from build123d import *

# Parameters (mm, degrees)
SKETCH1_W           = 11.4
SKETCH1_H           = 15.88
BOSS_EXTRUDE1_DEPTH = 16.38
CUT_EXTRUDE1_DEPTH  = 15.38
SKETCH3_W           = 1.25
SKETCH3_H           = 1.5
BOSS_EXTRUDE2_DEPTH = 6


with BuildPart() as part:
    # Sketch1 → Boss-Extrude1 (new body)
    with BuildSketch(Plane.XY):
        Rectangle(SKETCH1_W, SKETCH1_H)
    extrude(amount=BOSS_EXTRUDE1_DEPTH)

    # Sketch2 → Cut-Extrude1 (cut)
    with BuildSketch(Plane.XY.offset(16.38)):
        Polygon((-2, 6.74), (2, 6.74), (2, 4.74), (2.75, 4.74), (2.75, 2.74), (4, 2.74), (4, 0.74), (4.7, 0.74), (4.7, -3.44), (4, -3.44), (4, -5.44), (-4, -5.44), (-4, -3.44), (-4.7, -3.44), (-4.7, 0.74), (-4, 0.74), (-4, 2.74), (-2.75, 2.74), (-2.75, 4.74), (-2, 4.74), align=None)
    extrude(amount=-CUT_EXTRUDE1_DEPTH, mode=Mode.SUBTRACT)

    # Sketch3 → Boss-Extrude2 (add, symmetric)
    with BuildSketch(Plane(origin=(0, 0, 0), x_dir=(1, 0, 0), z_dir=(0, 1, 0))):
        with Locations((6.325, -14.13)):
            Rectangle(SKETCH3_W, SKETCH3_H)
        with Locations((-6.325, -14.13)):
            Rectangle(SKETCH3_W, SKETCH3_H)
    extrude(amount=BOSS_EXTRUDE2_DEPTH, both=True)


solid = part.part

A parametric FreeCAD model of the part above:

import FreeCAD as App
import Part
import Sketcher

V = App.Vector

doc = App.newDocument("Part")
body = doc.addObject("PartDesign::Body", "Body")

# Sketch on XY plane
sketch1 = body.newObject("Sketcher::SketchObject", "Sketch")
sketch1.AttachmentSupport = (doc.getObject("XY_Plane"), [""])
sketch1.MapMode = "FlatFace"
sketch1.addGeometry(Part.LineSegment(V(-5.7, 7.94, 0), V(-5.7, -7.94, 0)), False)
sketch1.addGeometry(Part.LineSegment(V(-5.7, -7.94, 0), V(5.7, -7.94, 0)), False)
sketch1.addGeometry(Part.LineSegment(V(5.7, -7.94, 0), V(5.7, 7.94, 0)), False)
sketch1.addGeometry(Part.LineSegment(V(5.7, 7.94, 0), V(-5.7, 7.94, 0)), False)
sketch1.addConstraint(Sketcher.Constraint("Coincident", 0, 2, 1, 1))
sketch1.addConstraint(Sketcher.Constraint("Coincident", 1, 2, 2, 1))
sketch1.addConstraint(Sketcher.Constraint("Coincident", 2, 2, 3, 1))
sketch1.addConstraint(Sketcher.Constraint("Coincident", 3, 2, 0, 1))
sketch1.addConstraint(Sketcher.Constraint("Vertical", 0))
sketch1.addConstraint(Sketcher.Constraint("Horizontal", 1))
sketch1.addConstraint(Sketcher.Constraint("Vertical", 2))
sketch1.addConstraint(Sketcher.Constraint("Horizontal", 3))
sketch1.addConstraint(Sketcher.Constraint("Symmetric", 0, 2, 2, 2, -1, 1))
sketch1.addConstraint(Sketcher.Constraint("DistanceX", 1, 1, 1, 2, 11.4))
sketch1.addConstraint(Sketcher.Constraint("DistanceY", 0, 2, 0, 1, 15.88))
pad1 = body.newObject("PartDesign::Pad", "Pad")
pad1.Profile = sketch1
pad1.Length = 16.38

# Sketch on XY plane
sketch2 = body.newObject("Sketcher::SketchObject", "Sketch001")
sketch2.AttachmentSupport = (doc.getObject("XY_Plane"), [""])
sketch2.MapMode = "FlatFace"
sketch2.AttachmentOffset = App.Placement(V(0, 0, 16.38), App.Rotation())
sketch2.addGeometry(Part.LineSegment(V(2, 6.74, 0), V(-2, 6.74, 0)), False)
sketch2.addGeometry(Part.LineSegment(V(-2, 6.74, 0), V(-2, 4.74, 0)), False)
sketch2.addGeometry(Part.LineSegment(V(-2, 4.74, 0), V(-2.75, 4.74, 0)), False)
sketch2.addGeometry(Part.LineSegment(V(-2.75, 4.74, 0), V(-2.75, 2.74, 0)), False)
sketch2.addGeometry(Part.LineSegment(V(-2.75, 2.74, 0), V(-4, 2.74, 0)), False)
sketch2.addGeometry(Part.LineSegment(V(-4, 2.74, 0), V(-4, 0.74, 0)), False)
sketch2.addGeometry(Part.LineSegment(V(-4, 0.74, 0), V(-4.7, 0.74, 0)), False)
sketch2.addGeometry(Part.LineSegment(V(-4.7, 0.74, 0), V(-4.7, -3.44, 0)), False)
sketch2.addGeometry(Part.LineSegment(V(-4.7, -3.44, 0), V(-4, -3.44, 0)), False)
sketch2.addGeometry(Part.LineSegment(V(-4, -3.44, 0), V(-4, -5.44, 0)), False)
sketch2.addGeometry(Part.LineSegment(V(-4, -5.44, 0), V(4, -5.44, 0)), False)
sketch2.addGeometry(Part.LineSegment(V(4, -5.44, 0), V(4, -3.44, 0)), False)
sketch2.addGeometry(Part.LineSegment(V(4, -3.44, 0), V(4.7, -3.44, 0)), False)
sketch2.addGeometry(Part.LineSegment(V(4.7, -3.44, 0), V(4.7, 0.74, 0)), False)
sketch2.addGeometry(Part.LineSegment(V(4.7, 0.74, 0), V(4, 0.74, 0)), False)
sketch2.addGeometry(Part.LineSegment(V(4, 0.74, 0), V(4, 2.74, 0)), False)
sketch2.addGeometry(Part.LineSegment(V(4, 2.74, 0), V(2.75, 2.74, 0)), False)
sketch2.addGeometry(Part.LineSegment(V(2.75, 2.74, 0), V(2.75, 4.74, 0)), False)
sketch2.addGeometry(Part.LineSegment(V(2.75, 4.74, 0), V(2, 4.74, 0)), False)
sketch2.addGeometry(Part.LineSegment(V(2, 4.74, 0), V(2, 6.74, 0)), False)
sketch2.addConstraint(Sketcher.Constraint("Coincident", 0, 2, 1, 1))
sketch2.addConstraint(Sketcher.Constraint("Coincident", 1, 2, 2, 1))
sketch2.addConstraint(Sketcher.Constraint("Coincident", 2, 2, 3, 1))
sketch2.addConstraint(Sketcher.Constraint("Coincident", 3, 2, 4, 1))
sketch2.addConstraint(Sketcher.Constraint("Coincident", 4, 2, 5, 1))
sketch2.addConstraint(Sketcher.Constraint("Coincident", 5, 2, 6, 1))
sketch2.addConstraint(Sketcher.Constraint("Coincident", 6, 2, 7, 1))
sketch2.addConstraint(Sketcher.Constraint("Coincident", 7, 2, 8, 1))
sketch2.addConstraint(Sketcher.Constraint("Coincident", 8, 2, 9, 1))
sketch2.addConstraint(Sketcher.Constraint("Coincident", 9, 2, 10, 1))
sketch2.addConstraint(Sketcher.Constraint("Coincident", 10, 2, 11, 1))
sketch2.addConstraint(Sketcher.Constraint("Coincident", 11, 2, 12, 1))
sketch2.addConstraint(Sketcher.Constraint("Coincident", 12, 2, 13, 1))
sketch2.addConstraint(Sketcher.Constraint("Coincident", 13, 2, 14, 1))
sketch2.addConstraint(Sketcher.Constraint("Coincident", 14, 2, 15, 1))
sketch2.addConstraint(Sketcher.Constraint("Coincident", 15, 2, 16, 1))
sketch2.addConstraint(Sketcher.Constraint("Coincident", 16, 2, 17, 1))
sketch2.addConstraint(Sketcher.Constraint("Coincident", 17, 2, 18, 1))
sketch2.addConstraint(Sketcher.Constraint("Coincident", 18, 2, 19, 1))
sketch2.addConstraint(Sketcher.Constraint("Coincident", 19, 2, 0, 1))
sketch2.addConstraint(Sketcher.Constraint("Horizontal", 0))
sketch2.addConstraint(Sketcher.Constraint("Vertical", 1))
sketch2.addConstraint(Sketcher.Constraint("Horizontal", 2))
sketch2.addConstraint(Sketcher.Constraint("Vertical", 3))
sketch2.addConstraint(Sketcher.Constraint("Horizontal", 4))
sketch2.addConstraint(Sketcher.Constraint("Vertical", 5))
sketch2.addConstraint(Sketcher.Constraint("Horizontal", 6))
sketch2.addConstraint(Sketcher.Constraint("Vertical", 7))
sketch2.addConstraint(Sketcher.Constraint("Horizontal", 8))
sketch2.addConstraint(Sketcher.Constraint("Vertical", 9))
sketch2.addConstraint(Sketcher.Constraint("Horizontal", 10))
sketch2.addConstraint(Sketcher.Constraint("Vertical", 11))
sketch2.addConstraint(Sketcher.Constraint("Horizontal", 12))
sketch2.addConstraint(Sketcher.Constraint("Vertical", 13))
sketch2.addConstraint(Sketcher.Constraint("Horizontal", 14))
sketch2.addConstraint(Sketcher.Constraint("Vertical", 15))
sketch2.addConstraint(Sketcher.Constraint("Horizontal", 16))
sketch2.addConstraint(Sketcher.Constraint("Vertical", 17))
sketch2.addConstraint(Sketcher.Constraint("Horizontal", 18))
sketch2.addConstraint(Sketcher.Constraint("Vertical", 19))
sketch2.addConstraint(Sketcher.Constraint("Symmetric", 8, 2, 11, 2, -2))
sketch2.addConstraint(Sketcher.Constraint("Symmetric", 6, 2, 13, 2, -2))
sketch2.addConstraint(Sketcher.Constraint("Symmetric", 4, 2, 15, 2, -2))
sketch2.addConstraint(Sketcher.Constraint("Symmetric", 2, 2, 17, 2, -2))
sketch2.addConstraint(Sketcher.Constraint("Vertical", 5, 2, 8, 2))
sketch2.addConstraint(Sketcher.Constraint("Equal", 2, 18))
sketch2.addConstraint(Sketcher.Constraint("Equal", 1, 3))
sketch2.addConstraint(Sketcher.Constraint("Equal", 3, 5))
sketch2.addConstraint(Sketcher.Constraint("Equal", 5, 9))
sketch2.addConstraint(Sketcher.Constraint("DistanceX", 0, 2, 0, 1, 4.0))
sketch2.addConstraint(Sketcher.Constraint("DistanceX", 10, 1, 10, 2, 8.0))
sketch2.addConstraint(Sketcher.Constraint("DistanceY", 1, 2, 1, 1, 2.0))
sketch2.addConstraint(Sketcher.Constraint("DistanceX", 6, 2, 6, 1, 0.7))
sketch2.addConstraint(Sketcher.Constraint("DistanceX", 2, 2, 2, 1, 0.75))
sketch2.addConstraint(Sketcher.Constraint("DistanceY", 7, 2, 7, 1, 4.18))
sketch2.addConstraint(Sketcher.Constraint("DistanceY", -1, 1, 0, 2, 6.74))
pocket1 = body.newObject("PartDesign::Pocket", "Pocket")
pocket1.Profile = sketch2
pocket1.Length = 15.38

# Sketch on XZ plane
sketch3 = body.newObject("Sketcher::SketchObject", "Sketch002")
sketch3.AttachmentSupport = (doc.getObject("XZ_Plane"), [""])
sketch3.MapMode = "FlatFace"
sketch3.addGeometry(Part.LineSegment(V(5.7, 13.38, 0), V(5.7, 14.88, 0)), False)
sketch3.addGeometry(Part.LineSegment(V(5.7, 14.88, 0), V(6.95, 14.88, 0)), False)
sketch3.addGeometry(Part.LineSegment(V(6.95, 14.88, 0), V(6.95, 13.38, 0)), False)
sketch3.addGeometry(Part.LineSegment(V(6.95, 13.38, 0), V(5.7, 13.38, 0)), False)
sketch3.addGeometry(Part.LineSegment(V(-6.95, 13.38, 0), V(-6.95, 14.88, 0)), False)
sketch3.addGeometry(Part.LineSegment(V(-6.95, 14.88, 0), V(-5.7, 14.88, 0)), False)
sketch3.addGeometry(Part.LineSegment(V(-5.7, 14.88, 0), V(-5.7, 13.38, 0)), False)
sketch3.addGeometry(Part.LineSegment(V(-5.7, 13.38, 0), V(-6.95, 13.38, 0)), False)
sketch3.addConstraint(Sketcher.Constraint("Coincident", 0, 2, 1, 1))
sketch3.addConstraint(Sketcher.Constraint("Coincident", 1, 2, 2, 1))
sketch3.addConstraint(Sketcher.Constraint("Coincident", 2, 2, 3, 1))
sketch3.addConstraint(Sketcher.Constraint("Coincident", 3, 2, 0, 1))
sketch3.addConstraint(Sketcher.Constraint("Coincident", 4, 2, 5, 1))
sketch3.addConstraint(Sketcher.Constraint("Coincident", 5, 2, 6, 1))
sketch3.addConstraint(Sketcher.Constraint("Coincident", 6, 2, 7, 1))
sketch3.addConstraint(Sketcher.Constraint("Coincident", 7, 2, 4, 1))
sketch3.addConstraint(Sketcher.Constraint("Vertical", 0))
sketch3.addConstraint(Sketcher.Constraint("Horizontal", 1))
sketch3.addConstraint(Sketcher.Constraint("Vertical", 2))
sketch3.addConstraint(Sketcher.Constraint("Horizontal", 3))
sketch3.addConstraint(Sketcher.Constraint("Vertical", 4))
sketch3.addConstraint(Sketcher.Constraint("Horizontal", 5))
sketch3.addConstraint(Sketcher.Constraint("Vertical", 6))
sketch3.addConstraint(Sketcher.Constraint("Horizontal", 7))
sketch3.addConstraint(Sketcher.Constraint("Symmetric", 1, 2, 4, 2, -2))
sketch3.addConstraint(Sketcher.Constraint("Symmetric", 3, 2, 6, 2, -2))
sketch3.addConstraint(Sketcher.Constraint("DistanceY", 0, 1, 0, 2, 1.5))
sketch3.addConstraint(Sketcher.Constraint("DistanceX", 1, 1, 1, 2, 1.25))
sketch3.addConstraint(Sketcher.Constraint("DistanceX", -1, 1, 0, 2, 5.7))
sketch3.addConstraint(Sketcher.Constraint("DistanceY", -1, 1, 0, 2, 14.88))
pad2 = body.newObject("PartDesign::Pad", "Pad001")
pad2.Profile = sketch3
pad2.Length = 12
pad2.Midplane = True

doc.recompute()
